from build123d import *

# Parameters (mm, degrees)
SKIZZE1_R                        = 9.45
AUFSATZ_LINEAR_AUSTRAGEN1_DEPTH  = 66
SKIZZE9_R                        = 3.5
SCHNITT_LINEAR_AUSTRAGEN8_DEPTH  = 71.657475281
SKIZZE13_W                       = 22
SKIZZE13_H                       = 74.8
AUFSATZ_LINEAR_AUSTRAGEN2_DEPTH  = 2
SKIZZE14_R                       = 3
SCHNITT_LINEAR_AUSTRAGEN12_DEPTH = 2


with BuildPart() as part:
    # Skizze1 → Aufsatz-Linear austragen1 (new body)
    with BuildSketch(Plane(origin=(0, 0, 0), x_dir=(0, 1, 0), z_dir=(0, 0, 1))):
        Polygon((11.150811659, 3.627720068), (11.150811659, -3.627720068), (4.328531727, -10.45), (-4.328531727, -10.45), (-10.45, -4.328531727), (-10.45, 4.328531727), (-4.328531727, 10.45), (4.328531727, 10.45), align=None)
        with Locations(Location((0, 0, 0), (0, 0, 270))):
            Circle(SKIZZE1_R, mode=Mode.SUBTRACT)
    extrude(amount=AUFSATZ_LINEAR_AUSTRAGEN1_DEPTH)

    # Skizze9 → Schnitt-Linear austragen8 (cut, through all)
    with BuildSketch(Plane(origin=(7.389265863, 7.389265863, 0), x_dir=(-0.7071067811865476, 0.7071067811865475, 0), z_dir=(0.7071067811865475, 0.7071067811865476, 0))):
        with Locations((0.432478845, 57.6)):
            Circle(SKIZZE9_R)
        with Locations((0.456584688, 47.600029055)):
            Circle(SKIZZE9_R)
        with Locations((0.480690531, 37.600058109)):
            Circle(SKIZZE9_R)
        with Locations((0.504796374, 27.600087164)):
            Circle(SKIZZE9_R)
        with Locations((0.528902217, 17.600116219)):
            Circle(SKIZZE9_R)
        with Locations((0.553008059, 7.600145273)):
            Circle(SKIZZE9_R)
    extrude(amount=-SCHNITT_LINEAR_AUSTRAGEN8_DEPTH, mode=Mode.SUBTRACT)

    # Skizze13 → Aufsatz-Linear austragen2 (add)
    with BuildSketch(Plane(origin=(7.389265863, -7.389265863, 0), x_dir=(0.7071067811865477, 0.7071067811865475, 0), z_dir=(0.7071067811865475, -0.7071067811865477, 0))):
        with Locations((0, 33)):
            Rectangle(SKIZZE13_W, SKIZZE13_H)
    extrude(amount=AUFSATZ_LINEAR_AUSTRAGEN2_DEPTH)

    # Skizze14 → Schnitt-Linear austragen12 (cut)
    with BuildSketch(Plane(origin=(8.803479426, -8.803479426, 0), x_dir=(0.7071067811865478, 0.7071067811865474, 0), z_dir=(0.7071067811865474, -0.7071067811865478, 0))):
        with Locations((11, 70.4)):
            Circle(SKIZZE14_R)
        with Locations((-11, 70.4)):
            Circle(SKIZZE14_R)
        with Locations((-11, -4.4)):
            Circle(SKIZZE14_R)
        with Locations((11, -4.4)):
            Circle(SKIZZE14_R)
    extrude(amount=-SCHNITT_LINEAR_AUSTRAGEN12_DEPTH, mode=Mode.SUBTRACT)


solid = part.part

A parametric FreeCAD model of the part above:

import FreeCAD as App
import Part
import Sketcher

doc = App.newDocument("Part")
params = doc.addObject("Spreadsheet::Sheet", "Params")
for row, (alias, value) in enumerate([
    ("sketch1_diameter", "18.9 mm"),
    ("pad1_length", "66 mm"),
    ("sketch2_diameter", "7 mm"),
    ("sketch3_width", "22 mm"),
    ("sketch3_height", "74.8 mm"),
    ("pad2_length", "2 mm"),
    ("sketch4_diameter", "6 mm"),
    ("pocket2_length", "2 mm"),
], start=1):
    params.set(f"A{row}", alias)
    params.set(f"B{row}", "=" + value)
    params.setAlias(f"B{row}", alias)

body = doc.addObject("PartDesign::Body", "Body")

# Sketch on XY plane
sketch1 = doc.addObject("Sketcher::SketchObject", "Sketch")
body.addObject(sketch1)
sketch1.AttachmentSupport = (doc.XY_Plane, [""])
sketch1.MapMode = "FlatFace"
sketch1.addGeometry([
    Part.LineSegment(App.Vector(4, 11, 0), App.Vector(-4, 11, 0)),  # 0
    Part.LineSegment(App.Vector(-4, 11, 0), App.Vector(-10, 4, 0)),  # 1
    Part.LineSegment(App.Vector(-10, 4, 0), App.Vector(-10, -4, 0)),  # 2
    Part.LineSegment(App.Vector(-10, -4, 0), App.Vector(-4, -10, 0)),  # 3
    Part.LineSegment(App.Vector(-4, -10, 0), App.Vector(4, -10, 0)),  # 4
    Part.LineSegment(App.Vector(4, -10, 0), App.Vector(10, -4, 0)),  # 5
    Part.LineSegment(App.Vector(10, -4, 0), App.Vector(10, 4, 0)),  # 6
    Part.LineSegment(App.Vector(10, 4, 0), App.Vector(4, 11, 0)),  # 7
    Part.Circle(App.Vector(0, 0, 0), App.Vector(0, 0, 1), 9),  # 8
], False)
sketch1.addConstraint([
    Sketcher.Constraint("Coincident", 0, 2, 1, 1),
    Sketcher.Constraint("Coincident", 1, 2, 2, 1),
    Sketcher.Constraint("Coincident", 2, 2, 3, 1),
    Sketcher.Constraint("Coincident", 3, 2, 4, 1),
    Sketcher.Constraint("Coincident", 4, 2, 5, 1),
    Sketcher.Constraint("Coincident", 5, 2, 6, 1),
    Sketcher.Constraint("Coincident", 6, 2, 7, 1),
    Sketcher.Constraint("Coincident", 7, 2, 0, 1),
    Sketcher.Constraint("Horizontal", 0),
    Sketcher.Constraint("Vertical", 2),
    Sketcher.Constraint("Horizontal", 4),
    Sketcher.Constraint("Vertical", 6),
    Sketcher.Constraint("Coincident", 8, 3, -1, 1),
    Sketcher.Constraint("Symmetric", 1, 2, 5, 2, -1, 1),
    Sketcher.Constraint("Perpendicular", 1, 3),
    Sketcher.Constraint("Perpendicular", 3, 5),
    Sketcher.Constraint("Perpendicular", 5, 7),
    Sketcher.Constraint("Horizontal", 2, 2, 5, 2),
    Sketcher.Constraint("Horizontal", 1, 2, 6, 2),
    Sketcher.Constraint("Equal", 4, 2),
    Sketcher.Constraint("Equal", 3, 5),
    Sketcher.Constraint("Diameter", 8, 18.9),
    Sketcher.Constraint("DistanceX", 2, 2, 5, 2, 20.9),
    Sketcher.Constraint("DistanceX", 0, 2, 0, 1, 7.25544),
    Sketcher.Constraint("DistanceX", 4, 1, 4, 2, 8.657063),
])
sketch1.setExpression("Constraints[21]", "Params.sketch1_diameter")
pad1 = doc.addObject("PartDesign::Pad", "Pad")
body.addObject(pad1)
pad1.Profile = sketch1
pad1.setExpression("Length", "Params.pad1_length")

# Sketch on an angled plane
sketch2 = doc.addObject("Sketcher::SketchObject", "Sketch001")
body.addObject(sketch2)
sketch2.Placement = App.Placement(App.Vector(7.389266, 7.389266, 0), App.Rotation(App.Vector(-0.707106781, 0.707106781, 0), App.Vector(0, 0, 0.999999999), App.Vector(0.707106781, 0.707106781, 0), "ZXY"))
sketch2.addGeometry([
    Part.Circle(App.Vector(0.4, 57.6, 0), App.Vector(0, 0, 1), 3.5),  # 0
    Part.Circle(App.Vector(0.5, 47.6, 0), App.Vector(0, 0, 1), 3.5),  # 1
    Part.Circle(App.Vector(0.5, 37.6, 0), App.Vector(0, 0, 1), 3.5),  # 2
    Part.Circle(App.Vector(0.5, 27.6, 0), App.Vector(0, 0, 1), 3.5),  # 3
    Part.Circle(App.Vector(0.5, 17.6, 0), App.Vector(0, 0, 1), 3.5),  # 4
    Part.Circle(App.Vector(0.6, 7.6, 0), App.Vector(0, 0, 1), 3.5),  # 5
], False)
sketch2.addConstraint([
    Sketcher.Constraint("Equal", 0, 1),
    Sketcher.Constraint("Equal", 1, 2),
    Sketcher.Constraint("Equal", 2, 3),
    Sketcher.Constraint("Equal", 3, 4),
    Sketcher.Constraint("Equal", 4, 5),
    Sketcher.Constraint("Diameter", 0, 7.0),
    Sketcher.Constraint("DistanceY", -1, 1, 0, 3, 57.6),
    Sketcher.Constraint("DistanceX", -1, 1, 0, 3, 0.432479),
    Sketcher.Constraint("DistanceY", -1, 1, 1, 3, 47.600029),
    Sketcher.Constraint("DistanceX", -1, 1, 2, 3, 0.480691),
    Sketcher.Constraint("DistanceY", -1, 1, 2, 3, 37.600058),
    Sketcher.Constraint("DistanceX", -1, 1, 5, 3, 0.553008),
    Sketcher.Constraint("DistanceY", 3, 3, 2, 3, 9.999971),
    Sketcher.Constraint("DistanceX", 1, 3, 3, 3, 0.048212),
    Sketcher.Constraint("DistanceY", 4, 3, 3, 3, 9.999971),
    Sketcher.Constraint("DistanceX", 2, 3, 4, 3, 0.048212),
    Sketcher.Constraint("DistanceY", 5, 3, 4, 3, 9.999971),
    Sketcher.Constraint("DistanceX", 3, 3, 5, 3, 0.048212),
])
sketch2.setExpression("Constraints[5]", "Params.sketch2_diameter")
pocket1 = doc.addObject("PartDesign::Pocket", "Pocket")
body.addObject(pocket1)
pocket1.Profile = sketch2
pocket1.Type = "ThroughAll"

# Sketch on an angled plane
sketch3 = doc.addObject("Sketcher::SketchObject", "Sketch002")
body.addObject(sketch3)
sketch3.Placement = App.Placement(App.Vector(7.389266, -7.389266, 0), App.Rotation(App.Vector(0.707106781, 0.707106781, 0), App.Vector(0, 0, 0.999999999), App.Vector(0.707106781, -0.707106781, 0), "ZXY"))
sketch3.addGeometry([
    Part.LineSegment(App.Vector(-11, 70, 0), App.Vector(-11, -4, 0)),
    Part.LineSegment(App.Vector(-11, -4, 0), App.Vector(11, -4, 0)),
    Part.LineSegment(App.Vector(11, -4, 0), App.Vector(11, 70, 0)),
    Part.LineSegment(App.Vector(11, 70, 0), App.Vector(-11, 70, 0)),
], False)
sketch3.addConstraint([
    Sketcher.Constraint("Coincident", 0, 2, 1, 1),
    Sketcher.Constraint("Coincident", 1, 2, 2, 1),
    Sketcher.Constraint("Coincident", 2, 2, 3, 1),
    Sketcher.Constraint("Coincident", 3, 2, 0, 1),
    Sketcher.Constraint("Vertical", 0),
    Sketcher.Constraint("Horizontal", 1),
    Sketcher.Constraint("Vertical", 2),
    Sketcher.Constraint("Horizontal", 3),
    Sketcher.Constraint("DistanceX", 1, 1, 1, 2, 22.0),
    Sketcher.Constraint("DistanceY", 0, 2, 0, 1, 74.8),
    Sketcher.Constraint("DistanceX", 0, 2, -1, 1, 11.0),
    Sketcher.Constraint("DistanceY", 0, 2, -1, 1, 4.4),
])
sketch3.setExpression("Constraints[8]", "Params.sketch3_width")
sketch3.setExpression("Constraints[9]", "Params.sketch3_height")
pad2 = doc.addObject("PartDesign::Pad", "Pad001")
body.addObject(pad2)
pad2.Profile = sketch3
pad2.setExpression("Length", "Params.pad2_length")

# Sketch on an angled plane
sketch4 = doc.addObject("Sketcher::SketchObject", "Sketch003")
body.addObject(sketch4)
sketch4.Placement = App.Placement(App.Vector(8.803479, -8.803479, 0), App.Rotation(App.Vector(0.707106781, 0.707106781, 0), App.Vector(0, 0, 0.999999999), App.Vector(0.707106781, -0.707106781, 0), "ZXY"))
sketch4.addGeometry([
    Part.Circle(App.Vector(11, 70.4, 0), App.Vector(0, 0, 1), 3),
    Part.Circle(App.Vector(-11, 70.4, 0), App.Vector(0, 0, 1), 3),
    Part.Circle(App.Vector(-11, -4.4, 0), App.Vector(0, 0, 1), 3),
    Part.Circle(App.Vector(11, -4.4, 0), App.Vector(0, 0, 1), 3),
], False)
sketch4.addConstraint([
    Sketcher.Constraint("Equal", 0, 1),
    Sketcher.Constraint("Equal", 1, 2),
    Sketcher.Constraint("Equal", 2, 3),
    Sketcher.Constraint("Symmetric", 0, 3, 1, 3, -2),
    Sketcher.Constraint("Symmetric", 2, 3, 3, 3, -2),
    Sketcher.Constraint("Vertical", 1, 3, 2, 3),
    Sketcher.Constraint("Diameter", 0, 6.0),
    Sketcher.Constraint("DistanceX", -1, 1, 0, 3, 11.0),
    Sketcher.Constraint("DistanceY", -1, 1, 0, 3, 70.4),
    Sketcher.Constraint("DistanceY", 2, 3, -1, 1, 4.4),
])
sketch4.setExpression("Constraints[6]", "Params.sketch4_diameter")
pocket2 = doc.addObject("PartDesign::Pocket", "Pocket001")
body.addObject(pocket2)
pocket2.Profile = sketch4
pocket2.setExpression("Length", "Params.pocket2_length")

doc.recompute()
